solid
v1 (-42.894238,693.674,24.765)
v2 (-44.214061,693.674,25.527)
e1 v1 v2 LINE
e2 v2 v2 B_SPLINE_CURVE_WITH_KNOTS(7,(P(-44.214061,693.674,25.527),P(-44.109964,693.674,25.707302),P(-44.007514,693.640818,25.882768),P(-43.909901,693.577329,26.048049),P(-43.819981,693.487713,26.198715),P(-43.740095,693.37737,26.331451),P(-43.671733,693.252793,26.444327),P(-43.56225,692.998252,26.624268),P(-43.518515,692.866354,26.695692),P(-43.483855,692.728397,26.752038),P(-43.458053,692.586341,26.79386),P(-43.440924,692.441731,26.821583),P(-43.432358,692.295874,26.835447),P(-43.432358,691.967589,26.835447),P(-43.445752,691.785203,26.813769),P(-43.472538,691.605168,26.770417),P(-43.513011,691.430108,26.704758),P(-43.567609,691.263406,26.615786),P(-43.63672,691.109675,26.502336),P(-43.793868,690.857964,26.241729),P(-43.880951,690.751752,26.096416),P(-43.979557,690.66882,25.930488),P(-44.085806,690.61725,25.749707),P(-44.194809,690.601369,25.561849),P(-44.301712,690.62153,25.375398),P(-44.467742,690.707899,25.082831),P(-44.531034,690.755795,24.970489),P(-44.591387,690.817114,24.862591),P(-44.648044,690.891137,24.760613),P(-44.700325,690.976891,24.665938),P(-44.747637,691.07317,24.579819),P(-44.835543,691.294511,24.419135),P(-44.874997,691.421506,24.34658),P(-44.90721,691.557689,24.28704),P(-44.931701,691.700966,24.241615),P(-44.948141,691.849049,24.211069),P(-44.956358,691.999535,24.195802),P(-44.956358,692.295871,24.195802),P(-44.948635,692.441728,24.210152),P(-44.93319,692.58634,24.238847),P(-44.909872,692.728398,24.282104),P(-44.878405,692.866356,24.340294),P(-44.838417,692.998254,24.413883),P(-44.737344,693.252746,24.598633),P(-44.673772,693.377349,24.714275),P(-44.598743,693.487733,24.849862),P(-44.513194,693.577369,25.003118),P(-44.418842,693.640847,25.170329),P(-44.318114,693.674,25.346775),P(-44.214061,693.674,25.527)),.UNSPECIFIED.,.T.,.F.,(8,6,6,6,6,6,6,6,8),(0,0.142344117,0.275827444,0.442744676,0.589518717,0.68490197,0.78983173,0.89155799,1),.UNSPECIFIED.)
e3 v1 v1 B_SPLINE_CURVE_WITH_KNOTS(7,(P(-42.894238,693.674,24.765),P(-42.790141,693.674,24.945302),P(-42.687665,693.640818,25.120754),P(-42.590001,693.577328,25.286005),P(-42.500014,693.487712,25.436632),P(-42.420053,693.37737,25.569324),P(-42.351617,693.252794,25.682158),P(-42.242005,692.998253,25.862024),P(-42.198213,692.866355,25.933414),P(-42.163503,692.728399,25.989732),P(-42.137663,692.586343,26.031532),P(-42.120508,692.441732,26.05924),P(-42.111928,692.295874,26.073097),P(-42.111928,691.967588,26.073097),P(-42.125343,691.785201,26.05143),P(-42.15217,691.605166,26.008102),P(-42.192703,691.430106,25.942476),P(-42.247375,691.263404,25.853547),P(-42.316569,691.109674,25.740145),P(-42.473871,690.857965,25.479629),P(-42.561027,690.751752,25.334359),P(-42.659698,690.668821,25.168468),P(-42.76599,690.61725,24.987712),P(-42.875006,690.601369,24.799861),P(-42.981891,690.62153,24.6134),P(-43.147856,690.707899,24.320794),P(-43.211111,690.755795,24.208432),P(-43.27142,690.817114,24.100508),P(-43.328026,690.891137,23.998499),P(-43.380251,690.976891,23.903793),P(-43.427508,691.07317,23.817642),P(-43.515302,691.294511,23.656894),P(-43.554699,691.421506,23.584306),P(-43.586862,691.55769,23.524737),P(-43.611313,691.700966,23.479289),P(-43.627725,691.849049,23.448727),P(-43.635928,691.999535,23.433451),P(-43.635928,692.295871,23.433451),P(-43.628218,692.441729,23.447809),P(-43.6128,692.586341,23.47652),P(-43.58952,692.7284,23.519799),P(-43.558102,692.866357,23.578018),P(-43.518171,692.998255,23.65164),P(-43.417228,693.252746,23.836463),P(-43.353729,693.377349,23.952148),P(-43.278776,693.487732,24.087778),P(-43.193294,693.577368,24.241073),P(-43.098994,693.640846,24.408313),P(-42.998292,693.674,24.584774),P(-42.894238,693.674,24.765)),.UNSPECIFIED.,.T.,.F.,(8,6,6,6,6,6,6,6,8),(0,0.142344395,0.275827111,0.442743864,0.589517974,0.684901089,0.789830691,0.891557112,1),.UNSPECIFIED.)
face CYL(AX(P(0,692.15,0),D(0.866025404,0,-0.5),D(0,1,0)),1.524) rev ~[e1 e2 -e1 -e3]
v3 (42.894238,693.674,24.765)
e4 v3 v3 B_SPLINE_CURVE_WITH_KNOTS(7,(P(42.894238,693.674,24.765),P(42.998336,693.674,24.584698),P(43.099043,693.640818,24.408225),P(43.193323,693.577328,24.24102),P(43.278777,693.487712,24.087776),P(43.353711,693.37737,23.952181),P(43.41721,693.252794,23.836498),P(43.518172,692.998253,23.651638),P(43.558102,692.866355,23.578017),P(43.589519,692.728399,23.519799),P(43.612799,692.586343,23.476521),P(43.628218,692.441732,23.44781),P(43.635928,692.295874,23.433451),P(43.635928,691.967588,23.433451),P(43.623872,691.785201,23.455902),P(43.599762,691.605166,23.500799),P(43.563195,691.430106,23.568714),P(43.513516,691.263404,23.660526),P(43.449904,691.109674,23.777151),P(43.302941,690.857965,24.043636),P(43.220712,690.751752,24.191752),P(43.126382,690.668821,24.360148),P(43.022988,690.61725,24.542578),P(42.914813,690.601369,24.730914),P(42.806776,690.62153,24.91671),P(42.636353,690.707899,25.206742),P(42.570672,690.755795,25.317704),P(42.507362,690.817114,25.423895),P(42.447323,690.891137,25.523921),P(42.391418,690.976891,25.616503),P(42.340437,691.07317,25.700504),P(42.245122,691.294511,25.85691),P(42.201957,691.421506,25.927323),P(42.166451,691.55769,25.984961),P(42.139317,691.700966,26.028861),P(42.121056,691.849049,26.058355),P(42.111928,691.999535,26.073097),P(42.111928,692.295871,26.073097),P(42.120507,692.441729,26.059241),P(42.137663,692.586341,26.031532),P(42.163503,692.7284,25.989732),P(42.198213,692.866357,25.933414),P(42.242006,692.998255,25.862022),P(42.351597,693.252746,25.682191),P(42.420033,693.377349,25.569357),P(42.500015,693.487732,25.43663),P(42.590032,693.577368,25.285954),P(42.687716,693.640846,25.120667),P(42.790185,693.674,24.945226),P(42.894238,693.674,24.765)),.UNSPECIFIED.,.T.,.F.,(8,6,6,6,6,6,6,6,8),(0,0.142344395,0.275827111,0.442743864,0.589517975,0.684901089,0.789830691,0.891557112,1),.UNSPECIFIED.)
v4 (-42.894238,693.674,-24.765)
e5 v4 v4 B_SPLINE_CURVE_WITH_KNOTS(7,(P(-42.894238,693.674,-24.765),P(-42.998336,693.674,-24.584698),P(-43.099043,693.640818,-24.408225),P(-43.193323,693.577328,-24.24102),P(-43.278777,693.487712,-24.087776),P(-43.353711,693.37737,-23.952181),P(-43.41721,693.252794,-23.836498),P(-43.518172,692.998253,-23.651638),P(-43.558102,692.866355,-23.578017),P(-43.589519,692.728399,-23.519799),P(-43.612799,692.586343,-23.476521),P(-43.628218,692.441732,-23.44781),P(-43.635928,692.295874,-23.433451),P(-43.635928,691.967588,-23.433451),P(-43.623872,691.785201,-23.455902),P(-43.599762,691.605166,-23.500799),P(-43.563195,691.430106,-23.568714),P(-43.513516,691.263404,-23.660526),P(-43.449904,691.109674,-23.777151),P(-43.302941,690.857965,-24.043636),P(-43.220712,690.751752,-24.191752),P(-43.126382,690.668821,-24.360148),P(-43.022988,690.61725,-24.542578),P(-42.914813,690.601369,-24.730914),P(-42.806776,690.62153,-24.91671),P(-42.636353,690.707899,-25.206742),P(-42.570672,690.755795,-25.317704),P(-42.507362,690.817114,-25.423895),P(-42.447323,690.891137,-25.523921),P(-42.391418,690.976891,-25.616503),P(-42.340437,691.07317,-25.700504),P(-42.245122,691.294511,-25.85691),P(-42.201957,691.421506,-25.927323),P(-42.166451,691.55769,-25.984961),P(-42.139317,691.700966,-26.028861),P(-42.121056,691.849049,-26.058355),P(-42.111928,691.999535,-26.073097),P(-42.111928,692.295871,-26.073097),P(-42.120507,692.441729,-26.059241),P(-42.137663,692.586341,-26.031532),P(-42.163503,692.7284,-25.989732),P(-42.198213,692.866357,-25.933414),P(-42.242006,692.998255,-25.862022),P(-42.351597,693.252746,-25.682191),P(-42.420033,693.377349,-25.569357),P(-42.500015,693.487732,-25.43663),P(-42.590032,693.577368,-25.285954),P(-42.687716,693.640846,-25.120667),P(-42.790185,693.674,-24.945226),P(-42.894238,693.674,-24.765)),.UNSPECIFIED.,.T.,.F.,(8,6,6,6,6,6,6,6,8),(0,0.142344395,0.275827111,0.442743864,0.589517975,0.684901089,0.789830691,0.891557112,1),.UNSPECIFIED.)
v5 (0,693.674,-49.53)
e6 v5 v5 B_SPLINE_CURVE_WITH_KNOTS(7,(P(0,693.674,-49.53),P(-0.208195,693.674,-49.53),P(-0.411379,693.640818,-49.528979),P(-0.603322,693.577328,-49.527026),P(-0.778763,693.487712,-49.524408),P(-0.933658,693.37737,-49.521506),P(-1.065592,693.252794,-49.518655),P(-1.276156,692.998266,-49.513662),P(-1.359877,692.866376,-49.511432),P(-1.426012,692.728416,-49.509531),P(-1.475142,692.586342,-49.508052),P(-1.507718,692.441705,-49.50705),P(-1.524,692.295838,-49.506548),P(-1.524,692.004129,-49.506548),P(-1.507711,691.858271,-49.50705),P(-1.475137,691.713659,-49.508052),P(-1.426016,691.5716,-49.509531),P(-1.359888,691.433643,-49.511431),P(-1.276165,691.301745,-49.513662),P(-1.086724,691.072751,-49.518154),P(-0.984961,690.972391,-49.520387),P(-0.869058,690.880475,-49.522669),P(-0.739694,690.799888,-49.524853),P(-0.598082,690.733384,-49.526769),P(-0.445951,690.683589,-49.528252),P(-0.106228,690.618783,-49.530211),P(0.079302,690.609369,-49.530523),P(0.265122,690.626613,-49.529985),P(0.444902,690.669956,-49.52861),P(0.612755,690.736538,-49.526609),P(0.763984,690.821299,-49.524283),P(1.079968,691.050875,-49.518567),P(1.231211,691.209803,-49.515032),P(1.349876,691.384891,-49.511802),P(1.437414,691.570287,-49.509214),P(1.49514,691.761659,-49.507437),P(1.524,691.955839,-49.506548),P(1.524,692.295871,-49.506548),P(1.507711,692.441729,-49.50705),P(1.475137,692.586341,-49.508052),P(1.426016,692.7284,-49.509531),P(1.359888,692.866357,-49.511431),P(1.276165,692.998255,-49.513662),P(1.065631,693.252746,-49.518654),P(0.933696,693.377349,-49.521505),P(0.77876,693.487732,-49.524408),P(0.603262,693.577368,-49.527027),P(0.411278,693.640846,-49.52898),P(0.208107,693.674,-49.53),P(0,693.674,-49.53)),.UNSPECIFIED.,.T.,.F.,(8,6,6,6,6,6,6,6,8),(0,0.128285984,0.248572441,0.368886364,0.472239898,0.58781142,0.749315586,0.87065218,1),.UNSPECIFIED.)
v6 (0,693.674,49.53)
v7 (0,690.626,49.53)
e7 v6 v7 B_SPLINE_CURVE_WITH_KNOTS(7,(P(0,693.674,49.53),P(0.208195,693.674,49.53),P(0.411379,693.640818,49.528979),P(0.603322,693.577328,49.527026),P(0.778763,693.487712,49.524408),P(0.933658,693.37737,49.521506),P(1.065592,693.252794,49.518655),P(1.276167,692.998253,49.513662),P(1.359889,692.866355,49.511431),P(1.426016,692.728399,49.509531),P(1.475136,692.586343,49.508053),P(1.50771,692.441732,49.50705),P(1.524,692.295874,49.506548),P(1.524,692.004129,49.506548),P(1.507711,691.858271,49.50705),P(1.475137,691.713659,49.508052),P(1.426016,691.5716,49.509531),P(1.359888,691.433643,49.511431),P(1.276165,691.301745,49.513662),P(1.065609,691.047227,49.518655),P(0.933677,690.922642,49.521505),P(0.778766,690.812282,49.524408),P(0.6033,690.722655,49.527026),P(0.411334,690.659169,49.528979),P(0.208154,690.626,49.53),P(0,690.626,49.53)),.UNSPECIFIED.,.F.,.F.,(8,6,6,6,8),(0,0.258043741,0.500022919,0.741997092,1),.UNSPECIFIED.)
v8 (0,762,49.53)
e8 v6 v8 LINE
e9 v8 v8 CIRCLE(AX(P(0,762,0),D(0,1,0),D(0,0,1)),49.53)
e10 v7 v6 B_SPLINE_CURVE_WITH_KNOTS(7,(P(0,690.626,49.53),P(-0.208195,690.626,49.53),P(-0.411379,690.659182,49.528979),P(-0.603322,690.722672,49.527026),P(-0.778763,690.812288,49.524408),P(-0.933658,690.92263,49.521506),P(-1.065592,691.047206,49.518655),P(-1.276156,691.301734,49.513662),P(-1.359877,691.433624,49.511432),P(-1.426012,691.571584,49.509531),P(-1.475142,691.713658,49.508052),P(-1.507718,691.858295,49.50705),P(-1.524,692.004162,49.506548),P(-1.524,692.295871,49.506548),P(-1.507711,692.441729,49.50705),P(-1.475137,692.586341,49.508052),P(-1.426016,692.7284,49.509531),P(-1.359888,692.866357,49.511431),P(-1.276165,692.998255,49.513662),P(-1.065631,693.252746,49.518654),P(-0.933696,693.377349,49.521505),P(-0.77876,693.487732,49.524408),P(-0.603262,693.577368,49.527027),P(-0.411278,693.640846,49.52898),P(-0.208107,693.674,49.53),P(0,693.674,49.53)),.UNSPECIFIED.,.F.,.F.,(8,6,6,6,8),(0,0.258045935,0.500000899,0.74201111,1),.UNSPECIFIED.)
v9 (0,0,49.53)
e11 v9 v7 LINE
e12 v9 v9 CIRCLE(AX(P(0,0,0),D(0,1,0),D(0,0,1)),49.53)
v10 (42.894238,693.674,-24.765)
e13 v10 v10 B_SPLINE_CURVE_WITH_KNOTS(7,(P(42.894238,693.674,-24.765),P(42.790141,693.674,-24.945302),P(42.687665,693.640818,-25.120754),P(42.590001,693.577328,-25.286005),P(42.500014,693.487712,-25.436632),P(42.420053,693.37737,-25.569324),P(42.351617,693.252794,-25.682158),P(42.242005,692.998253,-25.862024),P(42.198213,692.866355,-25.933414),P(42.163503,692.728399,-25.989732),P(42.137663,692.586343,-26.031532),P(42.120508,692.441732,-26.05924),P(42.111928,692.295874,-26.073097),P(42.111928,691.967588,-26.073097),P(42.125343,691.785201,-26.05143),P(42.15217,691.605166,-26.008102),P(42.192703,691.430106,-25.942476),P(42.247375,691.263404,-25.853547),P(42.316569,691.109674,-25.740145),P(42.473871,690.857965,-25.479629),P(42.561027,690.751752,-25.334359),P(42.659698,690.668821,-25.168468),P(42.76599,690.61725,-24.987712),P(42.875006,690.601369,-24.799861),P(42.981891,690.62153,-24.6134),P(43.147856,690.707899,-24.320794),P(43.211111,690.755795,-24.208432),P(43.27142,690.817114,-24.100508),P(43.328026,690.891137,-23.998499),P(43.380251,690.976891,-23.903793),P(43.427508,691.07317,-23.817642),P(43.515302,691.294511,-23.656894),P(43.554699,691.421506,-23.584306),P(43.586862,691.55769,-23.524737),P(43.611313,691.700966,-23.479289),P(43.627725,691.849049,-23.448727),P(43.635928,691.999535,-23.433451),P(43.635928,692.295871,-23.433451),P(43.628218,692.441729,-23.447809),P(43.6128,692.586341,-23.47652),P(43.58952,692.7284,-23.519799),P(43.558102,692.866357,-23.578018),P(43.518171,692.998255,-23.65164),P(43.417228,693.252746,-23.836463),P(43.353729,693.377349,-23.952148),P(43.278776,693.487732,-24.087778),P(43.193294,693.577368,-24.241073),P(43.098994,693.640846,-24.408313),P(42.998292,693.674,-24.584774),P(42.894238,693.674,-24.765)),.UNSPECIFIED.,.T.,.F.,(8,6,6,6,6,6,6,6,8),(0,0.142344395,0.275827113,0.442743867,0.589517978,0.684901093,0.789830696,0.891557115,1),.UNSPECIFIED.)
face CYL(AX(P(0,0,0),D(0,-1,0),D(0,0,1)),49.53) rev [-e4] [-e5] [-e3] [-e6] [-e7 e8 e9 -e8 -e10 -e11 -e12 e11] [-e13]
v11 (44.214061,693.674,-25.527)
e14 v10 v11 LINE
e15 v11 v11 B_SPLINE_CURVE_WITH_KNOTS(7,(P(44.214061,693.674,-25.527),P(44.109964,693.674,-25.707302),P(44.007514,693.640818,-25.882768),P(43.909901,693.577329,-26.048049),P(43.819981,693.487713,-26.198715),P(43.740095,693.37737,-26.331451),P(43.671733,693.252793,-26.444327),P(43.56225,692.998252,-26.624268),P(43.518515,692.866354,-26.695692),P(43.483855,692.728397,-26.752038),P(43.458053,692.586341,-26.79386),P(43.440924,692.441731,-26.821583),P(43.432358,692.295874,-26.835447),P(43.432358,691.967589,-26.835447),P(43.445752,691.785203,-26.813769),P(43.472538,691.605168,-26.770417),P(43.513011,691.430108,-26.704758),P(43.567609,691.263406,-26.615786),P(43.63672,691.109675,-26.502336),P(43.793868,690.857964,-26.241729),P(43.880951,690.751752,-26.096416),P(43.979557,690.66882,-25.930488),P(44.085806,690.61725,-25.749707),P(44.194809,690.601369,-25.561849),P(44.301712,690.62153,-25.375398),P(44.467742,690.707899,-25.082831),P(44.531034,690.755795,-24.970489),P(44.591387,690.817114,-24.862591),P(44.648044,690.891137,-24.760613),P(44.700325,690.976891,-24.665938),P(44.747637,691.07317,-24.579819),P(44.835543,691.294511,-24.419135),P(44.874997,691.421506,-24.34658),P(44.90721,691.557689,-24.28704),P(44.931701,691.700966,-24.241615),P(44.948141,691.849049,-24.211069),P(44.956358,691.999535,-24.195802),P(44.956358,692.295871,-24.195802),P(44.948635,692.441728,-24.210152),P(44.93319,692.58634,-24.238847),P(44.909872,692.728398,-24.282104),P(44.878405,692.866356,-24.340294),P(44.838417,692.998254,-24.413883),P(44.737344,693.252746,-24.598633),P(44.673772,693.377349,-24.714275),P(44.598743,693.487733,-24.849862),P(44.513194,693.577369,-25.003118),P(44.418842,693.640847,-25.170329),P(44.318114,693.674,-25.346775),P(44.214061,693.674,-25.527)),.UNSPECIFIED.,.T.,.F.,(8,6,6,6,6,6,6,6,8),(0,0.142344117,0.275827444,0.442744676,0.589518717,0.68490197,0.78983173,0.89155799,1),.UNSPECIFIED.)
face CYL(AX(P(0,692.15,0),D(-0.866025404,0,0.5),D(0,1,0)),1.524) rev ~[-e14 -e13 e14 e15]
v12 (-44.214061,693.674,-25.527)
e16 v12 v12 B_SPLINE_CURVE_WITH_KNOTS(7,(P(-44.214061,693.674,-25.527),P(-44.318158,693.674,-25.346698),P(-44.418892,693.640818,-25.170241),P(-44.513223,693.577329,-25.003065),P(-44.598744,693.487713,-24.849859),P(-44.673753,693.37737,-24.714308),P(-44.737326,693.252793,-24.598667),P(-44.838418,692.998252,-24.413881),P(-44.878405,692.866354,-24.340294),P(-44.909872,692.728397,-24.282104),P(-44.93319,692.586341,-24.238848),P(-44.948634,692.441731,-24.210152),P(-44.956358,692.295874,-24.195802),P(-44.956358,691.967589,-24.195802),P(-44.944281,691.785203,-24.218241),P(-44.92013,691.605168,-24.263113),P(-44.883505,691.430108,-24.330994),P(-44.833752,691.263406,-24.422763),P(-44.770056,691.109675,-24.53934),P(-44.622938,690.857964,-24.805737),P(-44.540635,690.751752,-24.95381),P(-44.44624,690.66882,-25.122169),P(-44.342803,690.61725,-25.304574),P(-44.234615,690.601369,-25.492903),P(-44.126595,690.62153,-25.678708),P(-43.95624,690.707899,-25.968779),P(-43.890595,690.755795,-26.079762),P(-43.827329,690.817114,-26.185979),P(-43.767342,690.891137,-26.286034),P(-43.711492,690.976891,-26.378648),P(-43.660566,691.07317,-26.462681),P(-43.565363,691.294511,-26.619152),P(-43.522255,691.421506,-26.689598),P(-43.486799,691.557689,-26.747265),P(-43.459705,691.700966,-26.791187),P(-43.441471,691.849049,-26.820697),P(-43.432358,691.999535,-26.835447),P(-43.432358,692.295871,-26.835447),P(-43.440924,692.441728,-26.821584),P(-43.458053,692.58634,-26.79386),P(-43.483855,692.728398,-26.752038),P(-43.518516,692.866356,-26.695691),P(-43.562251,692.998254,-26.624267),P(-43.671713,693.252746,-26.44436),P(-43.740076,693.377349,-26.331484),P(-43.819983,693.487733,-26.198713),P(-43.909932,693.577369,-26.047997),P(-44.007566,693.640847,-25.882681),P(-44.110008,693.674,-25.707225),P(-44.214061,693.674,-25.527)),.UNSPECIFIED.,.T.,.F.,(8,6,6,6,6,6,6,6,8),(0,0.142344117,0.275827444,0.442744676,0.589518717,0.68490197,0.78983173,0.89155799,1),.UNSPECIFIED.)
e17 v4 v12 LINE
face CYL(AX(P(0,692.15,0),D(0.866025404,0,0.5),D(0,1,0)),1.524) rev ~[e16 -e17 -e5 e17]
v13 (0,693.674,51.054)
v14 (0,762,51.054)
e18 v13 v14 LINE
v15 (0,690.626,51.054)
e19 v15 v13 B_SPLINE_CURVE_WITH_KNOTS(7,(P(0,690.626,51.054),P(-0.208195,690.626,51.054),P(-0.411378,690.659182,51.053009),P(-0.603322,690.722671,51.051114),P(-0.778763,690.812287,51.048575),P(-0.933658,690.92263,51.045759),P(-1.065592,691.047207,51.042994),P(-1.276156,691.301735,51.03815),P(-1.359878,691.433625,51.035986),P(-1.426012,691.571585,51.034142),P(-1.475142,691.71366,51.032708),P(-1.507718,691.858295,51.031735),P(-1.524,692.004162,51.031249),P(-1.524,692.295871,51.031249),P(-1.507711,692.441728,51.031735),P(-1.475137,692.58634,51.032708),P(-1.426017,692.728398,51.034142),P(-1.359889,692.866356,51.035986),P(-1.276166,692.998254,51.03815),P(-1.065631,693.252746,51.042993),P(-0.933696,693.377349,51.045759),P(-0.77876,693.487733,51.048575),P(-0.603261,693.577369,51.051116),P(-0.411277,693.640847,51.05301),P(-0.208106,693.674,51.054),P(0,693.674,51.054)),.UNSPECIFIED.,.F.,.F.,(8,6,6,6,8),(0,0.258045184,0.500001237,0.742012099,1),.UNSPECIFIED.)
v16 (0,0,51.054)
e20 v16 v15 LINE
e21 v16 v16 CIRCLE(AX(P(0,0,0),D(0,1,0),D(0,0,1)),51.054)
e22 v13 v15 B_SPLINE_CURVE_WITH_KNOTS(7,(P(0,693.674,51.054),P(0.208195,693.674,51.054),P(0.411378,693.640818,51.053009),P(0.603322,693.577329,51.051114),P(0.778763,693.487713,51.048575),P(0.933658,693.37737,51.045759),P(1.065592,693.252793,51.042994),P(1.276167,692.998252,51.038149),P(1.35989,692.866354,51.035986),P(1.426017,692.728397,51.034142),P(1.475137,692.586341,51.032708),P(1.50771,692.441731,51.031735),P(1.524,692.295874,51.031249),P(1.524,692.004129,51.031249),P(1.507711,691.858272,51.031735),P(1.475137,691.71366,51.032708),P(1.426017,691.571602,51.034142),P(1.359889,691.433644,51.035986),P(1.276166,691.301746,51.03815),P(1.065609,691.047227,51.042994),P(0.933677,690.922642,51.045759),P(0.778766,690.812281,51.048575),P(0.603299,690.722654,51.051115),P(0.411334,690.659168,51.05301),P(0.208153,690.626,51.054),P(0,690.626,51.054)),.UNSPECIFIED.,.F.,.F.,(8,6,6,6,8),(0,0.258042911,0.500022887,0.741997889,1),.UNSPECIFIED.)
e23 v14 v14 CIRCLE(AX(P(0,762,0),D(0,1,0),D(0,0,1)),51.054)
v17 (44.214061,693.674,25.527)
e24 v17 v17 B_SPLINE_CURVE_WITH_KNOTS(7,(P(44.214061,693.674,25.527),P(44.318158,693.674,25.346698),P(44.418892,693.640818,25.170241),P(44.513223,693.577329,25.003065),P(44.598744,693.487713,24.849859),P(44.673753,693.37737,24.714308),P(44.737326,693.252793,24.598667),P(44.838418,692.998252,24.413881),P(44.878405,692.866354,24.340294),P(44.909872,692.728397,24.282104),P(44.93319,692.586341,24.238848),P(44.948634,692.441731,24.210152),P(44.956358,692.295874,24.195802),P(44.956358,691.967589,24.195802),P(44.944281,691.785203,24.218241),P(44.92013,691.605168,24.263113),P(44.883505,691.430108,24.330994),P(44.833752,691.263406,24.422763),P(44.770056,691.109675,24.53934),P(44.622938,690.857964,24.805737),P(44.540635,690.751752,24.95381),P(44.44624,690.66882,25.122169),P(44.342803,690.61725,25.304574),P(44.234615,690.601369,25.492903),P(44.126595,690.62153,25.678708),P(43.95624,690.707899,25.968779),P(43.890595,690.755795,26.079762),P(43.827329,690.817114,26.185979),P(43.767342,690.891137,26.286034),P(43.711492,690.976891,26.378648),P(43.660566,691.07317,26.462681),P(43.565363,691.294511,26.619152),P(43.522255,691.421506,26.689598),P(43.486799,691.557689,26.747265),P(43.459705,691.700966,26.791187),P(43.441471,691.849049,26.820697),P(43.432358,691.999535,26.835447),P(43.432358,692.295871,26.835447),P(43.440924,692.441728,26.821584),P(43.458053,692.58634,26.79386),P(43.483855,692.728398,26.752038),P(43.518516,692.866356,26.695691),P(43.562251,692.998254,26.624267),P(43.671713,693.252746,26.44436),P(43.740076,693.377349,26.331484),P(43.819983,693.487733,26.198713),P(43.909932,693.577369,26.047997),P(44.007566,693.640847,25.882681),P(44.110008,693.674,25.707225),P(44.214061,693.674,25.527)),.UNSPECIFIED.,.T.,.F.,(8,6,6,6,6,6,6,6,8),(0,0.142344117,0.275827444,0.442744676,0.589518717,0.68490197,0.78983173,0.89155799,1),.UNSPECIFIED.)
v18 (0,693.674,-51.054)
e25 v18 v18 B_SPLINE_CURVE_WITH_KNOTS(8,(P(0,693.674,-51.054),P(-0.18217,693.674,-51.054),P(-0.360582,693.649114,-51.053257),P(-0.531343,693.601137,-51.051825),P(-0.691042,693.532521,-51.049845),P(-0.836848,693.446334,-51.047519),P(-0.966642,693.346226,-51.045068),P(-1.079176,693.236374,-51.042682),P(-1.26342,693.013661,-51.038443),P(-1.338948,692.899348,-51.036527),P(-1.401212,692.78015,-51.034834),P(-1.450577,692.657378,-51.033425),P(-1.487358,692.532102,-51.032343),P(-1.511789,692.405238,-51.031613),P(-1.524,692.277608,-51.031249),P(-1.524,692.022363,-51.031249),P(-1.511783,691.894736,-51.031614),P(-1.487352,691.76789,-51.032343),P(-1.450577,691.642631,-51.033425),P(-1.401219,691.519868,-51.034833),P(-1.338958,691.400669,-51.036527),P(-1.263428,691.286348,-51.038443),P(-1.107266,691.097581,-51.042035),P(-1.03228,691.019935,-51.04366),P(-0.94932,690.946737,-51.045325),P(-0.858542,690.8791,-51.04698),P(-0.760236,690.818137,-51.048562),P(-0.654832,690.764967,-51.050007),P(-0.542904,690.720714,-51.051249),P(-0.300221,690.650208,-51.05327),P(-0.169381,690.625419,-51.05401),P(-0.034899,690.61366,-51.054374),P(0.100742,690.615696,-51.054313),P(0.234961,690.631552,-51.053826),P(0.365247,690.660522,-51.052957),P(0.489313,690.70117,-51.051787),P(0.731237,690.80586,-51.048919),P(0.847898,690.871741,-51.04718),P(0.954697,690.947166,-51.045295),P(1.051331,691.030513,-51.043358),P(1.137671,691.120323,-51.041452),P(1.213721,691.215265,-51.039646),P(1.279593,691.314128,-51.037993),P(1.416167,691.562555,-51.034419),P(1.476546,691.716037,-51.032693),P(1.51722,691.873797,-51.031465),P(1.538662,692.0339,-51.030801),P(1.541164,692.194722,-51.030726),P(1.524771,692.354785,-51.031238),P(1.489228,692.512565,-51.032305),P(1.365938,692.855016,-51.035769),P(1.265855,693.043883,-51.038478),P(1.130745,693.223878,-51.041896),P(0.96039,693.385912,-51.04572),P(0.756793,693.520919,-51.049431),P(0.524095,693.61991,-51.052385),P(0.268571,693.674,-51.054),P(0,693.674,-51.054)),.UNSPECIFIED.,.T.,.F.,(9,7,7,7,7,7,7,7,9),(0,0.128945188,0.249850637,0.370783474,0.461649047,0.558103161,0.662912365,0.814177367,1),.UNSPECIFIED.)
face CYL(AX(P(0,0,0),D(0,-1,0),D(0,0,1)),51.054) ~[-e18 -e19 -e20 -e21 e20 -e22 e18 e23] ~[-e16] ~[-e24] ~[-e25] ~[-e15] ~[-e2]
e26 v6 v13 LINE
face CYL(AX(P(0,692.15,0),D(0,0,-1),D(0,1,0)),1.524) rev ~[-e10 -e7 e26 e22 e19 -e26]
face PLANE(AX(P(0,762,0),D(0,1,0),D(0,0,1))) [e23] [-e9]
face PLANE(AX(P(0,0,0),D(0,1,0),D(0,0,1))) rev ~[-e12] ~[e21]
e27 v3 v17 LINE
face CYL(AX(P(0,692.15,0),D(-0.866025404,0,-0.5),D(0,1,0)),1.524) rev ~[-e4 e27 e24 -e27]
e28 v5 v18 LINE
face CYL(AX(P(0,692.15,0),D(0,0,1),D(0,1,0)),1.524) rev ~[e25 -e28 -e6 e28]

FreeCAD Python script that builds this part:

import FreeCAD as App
import Part
import Sketcher

V = App.Vector
Q = App.Units.Quantity

doc = App.newDocument("Part")
params = doc.addObject("Spreadsheet::Sheet", "Params")
for row, (alias, value) in enumerate([
    ("sketch1_diameter", "3.9 in"),
    ("sketch1_diameter2", "4.02 in"),
    ("pad1_length", "30 in"),
    ("sketch2_diameter", "0.12 in"),
    ("pocket1_length", "2.6 in"),
], start=1):
    params.set(f"A{row}", alias)
    params.set(f"B{row}", "=" + value)
    params.setAlias(f"B{row}", alias)

body = doc.addObject("PartDesign::Body", "Body")

# Sketch on XZ plane
sketch1 = body.newObject("Sketcher::SketchObject", "Sketch")
sketch1.AttachmentSupport = (doc.getObject("XZ_Plane"), [""])
sketch1.MapMode = "FlatFace"
sketch1.addGeometry([
    Part.Circle(V(0, 0, 0), V(0, 0, 1), 51.054),
    Part.Circle(V(0, 0, 0), V(0, 0, 1), 49.53),
], False)
sketch1.addConstraint([
    Sketcher.Constraint("Coincident", 0, 3, -1, 1),
    Sketcher.Constraint("Coincident", 1, 3, -1, 1),
    Sketcher.Constraint("Diameter", 1, Q("3.9 in")),
    Sketcher.Constraint("Diameter", 0, Q("4.02 in")),
])
sketch1.setExpression("Constraints[2]", "Params.sketch1_diameter")
sketch1.setExpression("Constraints[3]", "Params.sketch1_diameter2")
pad1 = body.newObject("PartDesign::Pad", "Pad")
pad1.Profile = sketch1
pad1.setExpression("Length", "Params.pad1_length")
pad1.Reversed = True

# Sketch on XY plane
sketch2 = body.newObject("Sketcher::SketchObject", "Sketch001")
sketch2.AttachmentSupport = (doc.getObject("XY_Plane"), [""])
sketch2.MapMode = "FlatFace"
sketch2.addGeometry(Part.Circle(V(0, 692.15, 0), V(0, 0, 1), 1.524), False)
sketch2.addConstraint([
    Sketcher.Constraint("PointOnObject", 0, 3, -2),
    Sketcher.Constraint("Diameter", 0, Q("0.12 in")),
    Sketcher.Constraint("DistanceY", -1, 1, 0, 3, Q("27.25 in")),
])
sketch2.setExpression("Constraints[1]", "Params.sketch2_diameter")
pocket1 = body.newObject("PartDesign::Pocket", "Pocket")
pocket1.Profile = sketch2
pocket1.setExpression("Length", "Params.pocket1_length")
doc.recompute()

polarpattern = body.newObject("PartDesign::PolarPattern", "PolarPattern")
polarpattern.Originals = [pocket1]
polarpattern.Axis = (doc.getObject("Y_Axis"), [""])
polarpattern.Angle = 360
polarpattern.Occurrences = 6
body.Tip = polarpattern

doc.recompute()
